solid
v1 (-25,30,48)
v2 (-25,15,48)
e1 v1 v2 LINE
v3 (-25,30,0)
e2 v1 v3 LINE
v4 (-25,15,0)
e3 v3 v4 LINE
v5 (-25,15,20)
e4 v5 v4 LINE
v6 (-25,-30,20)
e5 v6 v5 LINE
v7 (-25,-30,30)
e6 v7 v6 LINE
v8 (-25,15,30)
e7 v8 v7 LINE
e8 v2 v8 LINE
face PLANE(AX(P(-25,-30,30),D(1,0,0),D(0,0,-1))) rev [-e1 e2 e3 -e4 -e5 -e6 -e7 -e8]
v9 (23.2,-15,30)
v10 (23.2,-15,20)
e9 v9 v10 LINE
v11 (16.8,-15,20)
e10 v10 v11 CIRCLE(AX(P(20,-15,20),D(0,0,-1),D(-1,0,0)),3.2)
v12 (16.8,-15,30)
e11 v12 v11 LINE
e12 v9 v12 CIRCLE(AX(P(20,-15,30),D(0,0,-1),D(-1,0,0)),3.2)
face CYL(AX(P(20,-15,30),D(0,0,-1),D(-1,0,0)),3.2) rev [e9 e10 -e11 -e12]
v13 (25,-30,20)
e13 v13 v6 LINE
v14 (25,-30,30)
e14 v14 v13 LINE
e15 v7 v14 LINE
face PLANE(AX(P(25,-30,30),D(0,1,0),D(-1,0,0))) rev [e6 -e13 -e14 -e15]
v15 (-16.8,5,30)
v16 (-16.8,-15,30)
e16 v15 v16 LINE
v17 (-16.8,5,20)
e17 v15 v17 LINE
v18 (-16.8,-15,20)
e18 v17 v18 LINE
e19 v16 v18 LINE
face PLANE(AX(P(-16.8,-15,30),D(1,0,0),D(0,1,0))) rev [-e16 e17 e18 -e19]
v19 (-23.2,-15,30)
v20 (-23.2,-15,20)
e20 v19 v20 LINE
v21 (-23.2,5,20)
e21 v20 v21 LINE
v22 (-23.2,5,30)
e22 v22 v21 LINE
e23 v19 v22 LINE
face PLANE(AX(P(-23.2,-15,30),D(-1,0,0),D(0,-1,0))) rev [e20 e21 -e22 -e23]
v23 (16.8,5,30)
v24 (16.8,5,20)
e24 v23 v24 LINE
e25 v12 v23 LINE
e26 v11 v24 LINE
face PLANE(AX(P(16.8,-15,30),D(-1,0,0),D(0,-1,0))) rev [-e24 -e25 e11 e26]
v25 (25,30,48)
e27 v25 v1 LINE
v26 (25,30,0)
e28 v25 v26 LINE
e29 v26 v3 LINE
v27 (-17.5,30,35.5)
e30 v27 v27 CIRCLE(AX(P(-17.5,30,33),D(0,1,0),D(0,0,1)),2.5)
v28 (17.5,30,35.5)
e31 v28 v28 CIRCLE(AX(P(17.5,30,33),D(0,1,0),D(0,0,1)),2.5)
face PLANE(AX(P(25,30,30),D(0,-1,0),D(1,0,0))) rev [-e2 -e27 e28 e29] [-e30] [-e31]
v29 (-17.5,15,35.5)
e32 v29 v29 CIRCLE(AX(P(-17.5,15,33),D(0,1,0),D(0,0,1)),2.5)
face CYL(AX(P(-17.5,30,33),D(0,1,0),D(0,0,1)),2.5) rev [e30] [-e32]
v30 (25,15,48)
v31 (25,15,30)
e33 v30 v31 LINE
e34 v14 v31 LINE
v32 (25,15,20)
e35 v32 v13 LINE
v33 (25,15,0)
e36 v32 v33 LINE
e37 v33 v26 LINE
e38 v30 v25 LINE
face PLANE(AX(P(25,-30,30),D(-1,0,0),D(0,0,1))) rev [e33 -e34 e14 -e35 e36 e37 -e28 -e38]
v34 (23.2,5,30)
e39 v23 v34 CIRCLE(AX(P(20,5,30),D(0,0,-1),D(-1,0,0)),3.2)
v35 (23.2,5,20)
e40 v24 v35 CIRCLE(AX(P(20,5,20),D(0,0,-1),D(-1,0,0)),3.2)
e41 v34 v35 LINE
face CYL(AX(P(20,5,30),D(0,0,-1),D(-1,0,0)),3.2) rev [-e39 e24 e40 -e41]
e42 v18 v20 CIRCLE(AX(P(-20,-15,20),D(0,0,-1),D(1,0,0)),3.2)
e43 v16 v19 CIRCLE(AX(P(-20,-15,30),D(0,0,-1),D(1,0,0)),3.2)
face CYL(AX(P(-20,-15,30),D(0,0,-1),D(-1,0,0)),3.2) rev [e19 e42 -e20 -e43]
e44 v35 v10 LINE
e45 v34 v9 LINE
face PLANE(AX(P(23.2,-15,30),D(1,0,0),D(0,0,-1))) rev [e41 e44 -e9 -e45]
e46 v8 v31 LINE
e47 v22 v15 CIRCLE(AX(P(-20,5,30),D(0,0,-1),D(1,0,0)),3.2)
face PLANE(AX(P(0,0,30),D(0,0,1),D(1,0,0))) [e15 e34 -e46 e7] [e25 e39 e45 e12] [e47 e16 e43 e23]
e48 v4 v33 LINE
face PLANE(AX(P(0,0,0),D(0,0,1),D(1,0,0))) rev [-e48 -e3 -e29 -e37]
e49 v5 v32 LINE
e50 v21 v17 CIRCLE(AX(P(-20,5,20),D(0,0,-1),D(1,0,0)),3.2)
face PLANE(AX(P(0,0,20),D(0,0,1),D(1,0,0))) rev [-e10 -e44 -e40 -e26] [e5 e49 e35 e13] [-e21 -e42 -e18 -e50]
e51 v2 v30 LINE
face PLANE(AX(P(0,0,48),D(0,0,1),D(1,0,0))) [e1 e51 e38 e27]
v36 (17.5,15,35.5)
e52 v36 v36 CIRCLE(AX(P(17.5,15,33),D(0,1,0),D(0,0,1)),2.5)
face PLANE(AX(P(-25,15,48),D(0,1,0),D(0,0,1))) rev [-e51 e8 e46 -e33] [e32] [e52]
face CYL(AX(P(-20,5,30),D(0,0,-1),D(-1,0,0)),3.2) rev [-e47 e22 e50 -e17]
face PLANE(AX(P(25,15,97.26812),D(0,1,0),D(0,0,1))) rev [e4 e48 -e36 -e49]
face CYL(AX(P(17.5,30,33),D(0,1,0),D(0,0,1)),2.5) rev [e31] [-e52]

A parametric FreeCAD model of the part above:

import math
import FreeCAD as App
import Part
import Sketcher
Q = App.Units.Quantity

doc = App.newDocument("Part")
params = doc.addObject("Spreadsheet::Sheet", "Params")
for row, (alias, value) in enumerate([
    ("sketch1_width", "50 mm"),
    ("sketch1_height", "60 mm"),
    ("pad1_length", "30 mm"),
    ("sketch2_width", "50 mm"),
    ("sketch2_height", "45 mm"),
    ("pocket1_length", "20 mm"),
    ("sketch3_radius", "3.2 mm"),
    ("sketch3_height", "20 mm"),
    ("sketch4_width", "50 mm"),
    ("sketch4_height", "15 mm"),
    ("pad2_length", "18 mm"),
    ("sketch5_diameter", "5 mm"),
    ("hole_diameter", "5 mm"),
    ("hole_depth", "15 mm"),
], start=1):
    params.set(f"A{row}", alias)
    params.set(f"B{row}", "=" + value)
    params.setAlias(f"B{row}", alias)

body = doc.addObject("PartDesign::Body", "Body")

# Sketch on XY plane
sketch1 = body.newObject("Sketcher::SketchObject", "Sketch")
sketch1.AttachmentSupport = (doc.getObject("XY_Plane"), [""])
sketch1.MapMode = "FlatFace"
sketch1.addGeometry([
    Part.LineSegment(App.Vector(-25, 30, 0), App.Vector(-25, -30, 0)),
    Part.LineSegment(App.Vector(-25, -30, 0), App.Vector(25, -30, 0)),
    Part.LineSegment(App.Vector(25, -30, 0), App.Vector(25, 30, 0)),
    Part.LineSegment(App.Vector(25, 30, 0), App.Vector(-25, 30, 0)),
], False)
sketch1.addConstraint([
    Sketcher.Constraint("Coincident", 0, 2, 1, 1),
    Sketcher.Constraint("Coincident", 1, 2, 2, 1),
    Sketcher.Constraint("Coincident", 2, 2, 3, 1),
    Sketcher.Constraint("Coincident", 3, 2, 0, 1),
    Sketcher.Constraint("Vertical", 0),
    Sketcher.Constraint("Horizontal", 1),
    Sketcher.Constraint("Vertical", 2),
    Sketcher.Constraint("Horizontal", 3),
    Sketcher.Constraint("Symmetric", 0, 2, 2, 2, -1, 1),
    Sketcher.Constraint("DistanceX", 1, 1, 1, 2, Q("50 mm")),
    Sketcher.Constraint("DistanceY", 0, 2, 0, 1, Q("60 mm")),
])
sketch1.setExpression("Constraints[9]", "Params.sketch1_width")
sketch1.setExpression("Constraints[10]", "Params.sketch1_height")
pad1 = body.newObject("PartDesign::Pad", "Pad")
pad1.Profile = sketch1
pad1.setExpression("Length", "Params.pad1_length")

# Sketch on XY plane
sketch2 = body.newObject("Sketcher::SketchObject", "Sketch001")
sketch2.AttachmentSupport = (doc.getObject("XY_Plane"), [""])
sketch2.MapMode = "FlatFace"
sketch2.addGeometry([
    Part.LineSegment(App.Vector(25, 15, 0), App.Vector(25, -30, 0)),
    Part.LineSegment(App.Vector(25, -30, 0), App.Vector(-25, -30, 0)),
    Part.LineSegment(App.Vector(-25, -30, 0), App.Vector(-25, 15, 0)),
    Part.LineSegment(App.Vector(-25, 15, 0), App.Vector(25, 15, 0)),
], False)
sketch2.addConstraint([
    Sketcher.Constraint("Coincident", 0, 2, 1, 1),
    Sketcher.Constraint("Coincident", 1, 2, 2, 1),
    Sketcher.Constraint("Coincident", 2, 2, 3, 1),
    Sketcher.Constraint("Coincident", 3, 2, 0, 1),
    Sketcher.Constraint("Vertical", 0),
    Sketcher.Constraint("Horizontal", 1),
    Sketcher.Constraint("Vertical", 2),
    Sketcher.Constraint("Horizontal", 3),
    Sketcher.Constraint("DistanceX", 1, 2, 1, 1, Q("50 mm")),
    Sketcher.Constraint("DistanceY", 0, 2, 0, 1, Q("45 mm")),
    Sketcher.Constraint("DistanceX", -1, 1, 0, 2, Q("25 mm")),
    Sketcher.Constraint("DistanceY", 0, 2, -1, 1, Q("30 mm")),
])
sketch2.setExpression("Constraints[8]", "Params.sketch2_width")
sketch2.setExpression("Constraints[9]", "Params.sketch2_height")
pocket1 = body.newObject("PartDesign::Pocket", "Pocket")
pocket1.Profile = sketch2
pocket1.setExpression("Length", "Params.pocket1_length")
pocket1.Reversed = True

# Sketch on XY plane
sketch3 = body.newObject("Sketcher::SketchObject", "Sketch002")
sketch3.AttachmentSupport = (doc.getObject("XY_Plane"), [""])
sketch3.MapMode = "FlatFace"
sketch3.AttachmentOffset = App.Placement(App.Vector(0, 0, 20), App.Rotation())
sketch3.addGeometry([
    Part.LineSegment(App.Vector(23.2, 5, 0), App.Vector(23.2, -15, 0)),  # 0
    Part.ArcOfCircle(Part.Circle(App.Vector(20, -15, 0), App.Vector(0, 0, 1), 3.2), math.radians(180), math.radians(360)),  # 1
    Part.LineSegment(App.Vector(16.8, -15, 0), App.Vector(16.8, 5, 0)),  # 2
    Part.ArcOfCircle(Part.Circle(App.Vector(20, 5, 0), App.Vector(0, 0, 1), 3.2), math.radians(0), math.radians(180)),  # 3
    Part.LineSegment(App.Vector(-23.2, -15, 0), App.Vector(-23.2, 5, 0)),  # 4
    Part.ArcOfCircle(Part.Circle(App.Vector(-20, 5, 0), App.Vector(0, 0, 1), 3.2), math.radians(0), math.radians(180)),  # 5
    Part.LineSegment(App.Vector(-16.8, 5, 0), App.Vector(-16.8, -15, 0)),  # 6
    Part.ArcOfCircle(Part.Circle(App.Vector(-20, -15, 0), App.Vector(0, 0, 1), 3.2), math.radians(180), math.radians(360)),  # 7
], False)
sketch3.addConstraint([
    Sketcher.Constraint("Tangent", 0, 2, 1, 2),
    Sketcher.Constraint("Tangent", 1, 1, 2, 1),
    Sketcher.Constraint("Tangent", 2, 2, 3, 2),
    Sketcher.Constraint("Tangent", 3, 1, 0, 1),
    Sketcher.Constraint("Tangent", 4, 2, 5, 2),
    Sketcher.Constraint("Tangent", 5, 1, 6, 1),
    Sketcher.Constraint("Tangent", 6, 2, 7, 2),
    Sketcher.Constraint("Tangent", 7, 1, 4, 1),
    Sketcher.Constraint("Vertical", 0),
    Sketcher.Constraint("Vertical", 2),
    Sketcher.Constraint("Vertical", 4),
    Sketcher.Constraint("Vertical", 6),
    Sketcher.Constraint("Equal", 3, 5),
    Sketcher.Constraint("Symmetric", 3, 3, 5, 3, -2),
    Sketcher.Constraint("Horizontal", 1, 3, 7, 3),
    Sketcher.Constraint("Radius", 1, Q("3.2 mm")),
    Sketcher.Constraint("DistanceY", 0, 2, 0, 1, Q("20 mm")),
    Sketcher.Constraint("DistanceX", -1, 1, 1, 3, Q("20 mm")),
    Sketcher.Constraint("DistanceY", 1, 3, -1, 1, Q("15 mm")),
])
sketch3.setExpression("Constraints[15]", "Params.sketch3_radius")
sketch3.setExpression("Constraints[16]", "Params.sketch3_height")
pocket2 = body.newObject("PartDesign::Pocket", "Pocket001")
pocket2.Profile = sketch3
pocket2.Type = "ThroughAll"
pocket2.Reversed = True

# Sketch on XY plane
sketch4 = body.newObject("Sketcher::SketchObject", "Sketch003")
sketch4.AttachmentSupport = (doc.getObject("XY_Plane"), [""])
sketch4.MapMode = "FlatFace"
sketch4.AttachmentOffset = App.Placement(App.Vector(0, 0, 30), App.Rotation())
sketch4.addGeometry([
    Part.LineSegment(App.Vector(-25, 30, 0), App.Vector(-25, 15, 0)),
    Part.LineSegment(App.Vector(-25, 15, 0), App.Vector(25, 15, 0)),
    Part.LineSegment(App.Vector(25, 15, 0), App.Vector(25, 30, 0)),
    Part.LineSegment(App.Vector(25, 30, 0), App.Vector(-25, 30, 0)),
], False)
sketch4.addConstraint([
    Sketcher.Constraint("Coincident", 0, 2, 1, 1),
    Sketcher.Constraint("Coincident", 1, 2, 2, 1),
    Sketcher.Constraint("Coincident", 2, 2, 3, 1),
    Sketcher.Constraint("Coincident", 3, 2, 0, 1),
    Sketcher.Constraint("Vertical", 0),
    Sketcher.Constraint("Horizontal", 1),
    Sketcher.Constraint("Vertical", 2),
    Sketcher.Constraint("Horizontal", 3),
    Sketcher.Constraint("DistanceX", 1, 1, 1, 2, Q("50 mm")),
    Sketcher.Constraint("DistanceY", 0, 2, 0, 1, Q("15 mm")),
    Sketcher.Constraint("DistanceX", 0, 2, -1, 1, Q("25 mm")),
    Sketcher.Constraint("DistanceY", -1, 1, 0, 2, Q("15 mm")),
])
sketch4.setExpression("Constraints[8]", "Params.sketch4_width")
sketch4.setExpression("Constraints[9]", "Params.sketch4_height")
pad2 = body.newObject("PartDesign::Pad", "Pad001")
pad2.Profile = sketch4
pad2.setExpression("Length", "Params.pad2_length")

# Sketch on XZ plane
sketch5 = body.newObject("Sketcher::SketchObject", "Sketch004")
sketch5.AttachmentSupport = (doc.getObject("XZ_Plane"), [""])
sketch5.MapMode = "FlatFace"
sketch5.AttachmentOffset = App.Placement(App.Vector(0, 0, -30), App.Rotation())
sketch5.addGeometry([
    Part.Circle(App.Vector(17.5, 33, 0), App.Vector(0, 0, 1), 2.5),
    Part.Circle(App.Vector(-17.5, 33, 0), App.Vector(0, 0, 1), 2.5),
], False)
sketch5.addConstraint([
    Sketcher.Constraint("Equal", 0, 1),
    Sketcher.Constraint("Symmetric", 0, 3, 1, 3, -2),
    Sketcher.Constraint("Diameter", 0, Q("5 mm")),
    Sketcher.Constraint("DistanceY", -1, 1, 0, 3, Q("33 mm")),
    Sketcher.Constraint("DistanceX", 1, 3, 0, 3, Q("35 mm")),
])
sketch5.setExpression("Constraints[2]", "Params.sketch5_diameter")
doc.recompute()
hole = body.newObject("PartDesign::Hole", "Hole")
hole.Profile = sketch5
hole.ThreadType = "None"
hole.setExpression("Diameter", "Params.hole_diameter")
hole.DepthType = "Dimension"
hole.setExpression("Depth", "Params.hole_depth")
hole.DrillPoint = "Angled"
hole.DrillPointAngle = 118
hole.Reversed = True

doc.recompute()
